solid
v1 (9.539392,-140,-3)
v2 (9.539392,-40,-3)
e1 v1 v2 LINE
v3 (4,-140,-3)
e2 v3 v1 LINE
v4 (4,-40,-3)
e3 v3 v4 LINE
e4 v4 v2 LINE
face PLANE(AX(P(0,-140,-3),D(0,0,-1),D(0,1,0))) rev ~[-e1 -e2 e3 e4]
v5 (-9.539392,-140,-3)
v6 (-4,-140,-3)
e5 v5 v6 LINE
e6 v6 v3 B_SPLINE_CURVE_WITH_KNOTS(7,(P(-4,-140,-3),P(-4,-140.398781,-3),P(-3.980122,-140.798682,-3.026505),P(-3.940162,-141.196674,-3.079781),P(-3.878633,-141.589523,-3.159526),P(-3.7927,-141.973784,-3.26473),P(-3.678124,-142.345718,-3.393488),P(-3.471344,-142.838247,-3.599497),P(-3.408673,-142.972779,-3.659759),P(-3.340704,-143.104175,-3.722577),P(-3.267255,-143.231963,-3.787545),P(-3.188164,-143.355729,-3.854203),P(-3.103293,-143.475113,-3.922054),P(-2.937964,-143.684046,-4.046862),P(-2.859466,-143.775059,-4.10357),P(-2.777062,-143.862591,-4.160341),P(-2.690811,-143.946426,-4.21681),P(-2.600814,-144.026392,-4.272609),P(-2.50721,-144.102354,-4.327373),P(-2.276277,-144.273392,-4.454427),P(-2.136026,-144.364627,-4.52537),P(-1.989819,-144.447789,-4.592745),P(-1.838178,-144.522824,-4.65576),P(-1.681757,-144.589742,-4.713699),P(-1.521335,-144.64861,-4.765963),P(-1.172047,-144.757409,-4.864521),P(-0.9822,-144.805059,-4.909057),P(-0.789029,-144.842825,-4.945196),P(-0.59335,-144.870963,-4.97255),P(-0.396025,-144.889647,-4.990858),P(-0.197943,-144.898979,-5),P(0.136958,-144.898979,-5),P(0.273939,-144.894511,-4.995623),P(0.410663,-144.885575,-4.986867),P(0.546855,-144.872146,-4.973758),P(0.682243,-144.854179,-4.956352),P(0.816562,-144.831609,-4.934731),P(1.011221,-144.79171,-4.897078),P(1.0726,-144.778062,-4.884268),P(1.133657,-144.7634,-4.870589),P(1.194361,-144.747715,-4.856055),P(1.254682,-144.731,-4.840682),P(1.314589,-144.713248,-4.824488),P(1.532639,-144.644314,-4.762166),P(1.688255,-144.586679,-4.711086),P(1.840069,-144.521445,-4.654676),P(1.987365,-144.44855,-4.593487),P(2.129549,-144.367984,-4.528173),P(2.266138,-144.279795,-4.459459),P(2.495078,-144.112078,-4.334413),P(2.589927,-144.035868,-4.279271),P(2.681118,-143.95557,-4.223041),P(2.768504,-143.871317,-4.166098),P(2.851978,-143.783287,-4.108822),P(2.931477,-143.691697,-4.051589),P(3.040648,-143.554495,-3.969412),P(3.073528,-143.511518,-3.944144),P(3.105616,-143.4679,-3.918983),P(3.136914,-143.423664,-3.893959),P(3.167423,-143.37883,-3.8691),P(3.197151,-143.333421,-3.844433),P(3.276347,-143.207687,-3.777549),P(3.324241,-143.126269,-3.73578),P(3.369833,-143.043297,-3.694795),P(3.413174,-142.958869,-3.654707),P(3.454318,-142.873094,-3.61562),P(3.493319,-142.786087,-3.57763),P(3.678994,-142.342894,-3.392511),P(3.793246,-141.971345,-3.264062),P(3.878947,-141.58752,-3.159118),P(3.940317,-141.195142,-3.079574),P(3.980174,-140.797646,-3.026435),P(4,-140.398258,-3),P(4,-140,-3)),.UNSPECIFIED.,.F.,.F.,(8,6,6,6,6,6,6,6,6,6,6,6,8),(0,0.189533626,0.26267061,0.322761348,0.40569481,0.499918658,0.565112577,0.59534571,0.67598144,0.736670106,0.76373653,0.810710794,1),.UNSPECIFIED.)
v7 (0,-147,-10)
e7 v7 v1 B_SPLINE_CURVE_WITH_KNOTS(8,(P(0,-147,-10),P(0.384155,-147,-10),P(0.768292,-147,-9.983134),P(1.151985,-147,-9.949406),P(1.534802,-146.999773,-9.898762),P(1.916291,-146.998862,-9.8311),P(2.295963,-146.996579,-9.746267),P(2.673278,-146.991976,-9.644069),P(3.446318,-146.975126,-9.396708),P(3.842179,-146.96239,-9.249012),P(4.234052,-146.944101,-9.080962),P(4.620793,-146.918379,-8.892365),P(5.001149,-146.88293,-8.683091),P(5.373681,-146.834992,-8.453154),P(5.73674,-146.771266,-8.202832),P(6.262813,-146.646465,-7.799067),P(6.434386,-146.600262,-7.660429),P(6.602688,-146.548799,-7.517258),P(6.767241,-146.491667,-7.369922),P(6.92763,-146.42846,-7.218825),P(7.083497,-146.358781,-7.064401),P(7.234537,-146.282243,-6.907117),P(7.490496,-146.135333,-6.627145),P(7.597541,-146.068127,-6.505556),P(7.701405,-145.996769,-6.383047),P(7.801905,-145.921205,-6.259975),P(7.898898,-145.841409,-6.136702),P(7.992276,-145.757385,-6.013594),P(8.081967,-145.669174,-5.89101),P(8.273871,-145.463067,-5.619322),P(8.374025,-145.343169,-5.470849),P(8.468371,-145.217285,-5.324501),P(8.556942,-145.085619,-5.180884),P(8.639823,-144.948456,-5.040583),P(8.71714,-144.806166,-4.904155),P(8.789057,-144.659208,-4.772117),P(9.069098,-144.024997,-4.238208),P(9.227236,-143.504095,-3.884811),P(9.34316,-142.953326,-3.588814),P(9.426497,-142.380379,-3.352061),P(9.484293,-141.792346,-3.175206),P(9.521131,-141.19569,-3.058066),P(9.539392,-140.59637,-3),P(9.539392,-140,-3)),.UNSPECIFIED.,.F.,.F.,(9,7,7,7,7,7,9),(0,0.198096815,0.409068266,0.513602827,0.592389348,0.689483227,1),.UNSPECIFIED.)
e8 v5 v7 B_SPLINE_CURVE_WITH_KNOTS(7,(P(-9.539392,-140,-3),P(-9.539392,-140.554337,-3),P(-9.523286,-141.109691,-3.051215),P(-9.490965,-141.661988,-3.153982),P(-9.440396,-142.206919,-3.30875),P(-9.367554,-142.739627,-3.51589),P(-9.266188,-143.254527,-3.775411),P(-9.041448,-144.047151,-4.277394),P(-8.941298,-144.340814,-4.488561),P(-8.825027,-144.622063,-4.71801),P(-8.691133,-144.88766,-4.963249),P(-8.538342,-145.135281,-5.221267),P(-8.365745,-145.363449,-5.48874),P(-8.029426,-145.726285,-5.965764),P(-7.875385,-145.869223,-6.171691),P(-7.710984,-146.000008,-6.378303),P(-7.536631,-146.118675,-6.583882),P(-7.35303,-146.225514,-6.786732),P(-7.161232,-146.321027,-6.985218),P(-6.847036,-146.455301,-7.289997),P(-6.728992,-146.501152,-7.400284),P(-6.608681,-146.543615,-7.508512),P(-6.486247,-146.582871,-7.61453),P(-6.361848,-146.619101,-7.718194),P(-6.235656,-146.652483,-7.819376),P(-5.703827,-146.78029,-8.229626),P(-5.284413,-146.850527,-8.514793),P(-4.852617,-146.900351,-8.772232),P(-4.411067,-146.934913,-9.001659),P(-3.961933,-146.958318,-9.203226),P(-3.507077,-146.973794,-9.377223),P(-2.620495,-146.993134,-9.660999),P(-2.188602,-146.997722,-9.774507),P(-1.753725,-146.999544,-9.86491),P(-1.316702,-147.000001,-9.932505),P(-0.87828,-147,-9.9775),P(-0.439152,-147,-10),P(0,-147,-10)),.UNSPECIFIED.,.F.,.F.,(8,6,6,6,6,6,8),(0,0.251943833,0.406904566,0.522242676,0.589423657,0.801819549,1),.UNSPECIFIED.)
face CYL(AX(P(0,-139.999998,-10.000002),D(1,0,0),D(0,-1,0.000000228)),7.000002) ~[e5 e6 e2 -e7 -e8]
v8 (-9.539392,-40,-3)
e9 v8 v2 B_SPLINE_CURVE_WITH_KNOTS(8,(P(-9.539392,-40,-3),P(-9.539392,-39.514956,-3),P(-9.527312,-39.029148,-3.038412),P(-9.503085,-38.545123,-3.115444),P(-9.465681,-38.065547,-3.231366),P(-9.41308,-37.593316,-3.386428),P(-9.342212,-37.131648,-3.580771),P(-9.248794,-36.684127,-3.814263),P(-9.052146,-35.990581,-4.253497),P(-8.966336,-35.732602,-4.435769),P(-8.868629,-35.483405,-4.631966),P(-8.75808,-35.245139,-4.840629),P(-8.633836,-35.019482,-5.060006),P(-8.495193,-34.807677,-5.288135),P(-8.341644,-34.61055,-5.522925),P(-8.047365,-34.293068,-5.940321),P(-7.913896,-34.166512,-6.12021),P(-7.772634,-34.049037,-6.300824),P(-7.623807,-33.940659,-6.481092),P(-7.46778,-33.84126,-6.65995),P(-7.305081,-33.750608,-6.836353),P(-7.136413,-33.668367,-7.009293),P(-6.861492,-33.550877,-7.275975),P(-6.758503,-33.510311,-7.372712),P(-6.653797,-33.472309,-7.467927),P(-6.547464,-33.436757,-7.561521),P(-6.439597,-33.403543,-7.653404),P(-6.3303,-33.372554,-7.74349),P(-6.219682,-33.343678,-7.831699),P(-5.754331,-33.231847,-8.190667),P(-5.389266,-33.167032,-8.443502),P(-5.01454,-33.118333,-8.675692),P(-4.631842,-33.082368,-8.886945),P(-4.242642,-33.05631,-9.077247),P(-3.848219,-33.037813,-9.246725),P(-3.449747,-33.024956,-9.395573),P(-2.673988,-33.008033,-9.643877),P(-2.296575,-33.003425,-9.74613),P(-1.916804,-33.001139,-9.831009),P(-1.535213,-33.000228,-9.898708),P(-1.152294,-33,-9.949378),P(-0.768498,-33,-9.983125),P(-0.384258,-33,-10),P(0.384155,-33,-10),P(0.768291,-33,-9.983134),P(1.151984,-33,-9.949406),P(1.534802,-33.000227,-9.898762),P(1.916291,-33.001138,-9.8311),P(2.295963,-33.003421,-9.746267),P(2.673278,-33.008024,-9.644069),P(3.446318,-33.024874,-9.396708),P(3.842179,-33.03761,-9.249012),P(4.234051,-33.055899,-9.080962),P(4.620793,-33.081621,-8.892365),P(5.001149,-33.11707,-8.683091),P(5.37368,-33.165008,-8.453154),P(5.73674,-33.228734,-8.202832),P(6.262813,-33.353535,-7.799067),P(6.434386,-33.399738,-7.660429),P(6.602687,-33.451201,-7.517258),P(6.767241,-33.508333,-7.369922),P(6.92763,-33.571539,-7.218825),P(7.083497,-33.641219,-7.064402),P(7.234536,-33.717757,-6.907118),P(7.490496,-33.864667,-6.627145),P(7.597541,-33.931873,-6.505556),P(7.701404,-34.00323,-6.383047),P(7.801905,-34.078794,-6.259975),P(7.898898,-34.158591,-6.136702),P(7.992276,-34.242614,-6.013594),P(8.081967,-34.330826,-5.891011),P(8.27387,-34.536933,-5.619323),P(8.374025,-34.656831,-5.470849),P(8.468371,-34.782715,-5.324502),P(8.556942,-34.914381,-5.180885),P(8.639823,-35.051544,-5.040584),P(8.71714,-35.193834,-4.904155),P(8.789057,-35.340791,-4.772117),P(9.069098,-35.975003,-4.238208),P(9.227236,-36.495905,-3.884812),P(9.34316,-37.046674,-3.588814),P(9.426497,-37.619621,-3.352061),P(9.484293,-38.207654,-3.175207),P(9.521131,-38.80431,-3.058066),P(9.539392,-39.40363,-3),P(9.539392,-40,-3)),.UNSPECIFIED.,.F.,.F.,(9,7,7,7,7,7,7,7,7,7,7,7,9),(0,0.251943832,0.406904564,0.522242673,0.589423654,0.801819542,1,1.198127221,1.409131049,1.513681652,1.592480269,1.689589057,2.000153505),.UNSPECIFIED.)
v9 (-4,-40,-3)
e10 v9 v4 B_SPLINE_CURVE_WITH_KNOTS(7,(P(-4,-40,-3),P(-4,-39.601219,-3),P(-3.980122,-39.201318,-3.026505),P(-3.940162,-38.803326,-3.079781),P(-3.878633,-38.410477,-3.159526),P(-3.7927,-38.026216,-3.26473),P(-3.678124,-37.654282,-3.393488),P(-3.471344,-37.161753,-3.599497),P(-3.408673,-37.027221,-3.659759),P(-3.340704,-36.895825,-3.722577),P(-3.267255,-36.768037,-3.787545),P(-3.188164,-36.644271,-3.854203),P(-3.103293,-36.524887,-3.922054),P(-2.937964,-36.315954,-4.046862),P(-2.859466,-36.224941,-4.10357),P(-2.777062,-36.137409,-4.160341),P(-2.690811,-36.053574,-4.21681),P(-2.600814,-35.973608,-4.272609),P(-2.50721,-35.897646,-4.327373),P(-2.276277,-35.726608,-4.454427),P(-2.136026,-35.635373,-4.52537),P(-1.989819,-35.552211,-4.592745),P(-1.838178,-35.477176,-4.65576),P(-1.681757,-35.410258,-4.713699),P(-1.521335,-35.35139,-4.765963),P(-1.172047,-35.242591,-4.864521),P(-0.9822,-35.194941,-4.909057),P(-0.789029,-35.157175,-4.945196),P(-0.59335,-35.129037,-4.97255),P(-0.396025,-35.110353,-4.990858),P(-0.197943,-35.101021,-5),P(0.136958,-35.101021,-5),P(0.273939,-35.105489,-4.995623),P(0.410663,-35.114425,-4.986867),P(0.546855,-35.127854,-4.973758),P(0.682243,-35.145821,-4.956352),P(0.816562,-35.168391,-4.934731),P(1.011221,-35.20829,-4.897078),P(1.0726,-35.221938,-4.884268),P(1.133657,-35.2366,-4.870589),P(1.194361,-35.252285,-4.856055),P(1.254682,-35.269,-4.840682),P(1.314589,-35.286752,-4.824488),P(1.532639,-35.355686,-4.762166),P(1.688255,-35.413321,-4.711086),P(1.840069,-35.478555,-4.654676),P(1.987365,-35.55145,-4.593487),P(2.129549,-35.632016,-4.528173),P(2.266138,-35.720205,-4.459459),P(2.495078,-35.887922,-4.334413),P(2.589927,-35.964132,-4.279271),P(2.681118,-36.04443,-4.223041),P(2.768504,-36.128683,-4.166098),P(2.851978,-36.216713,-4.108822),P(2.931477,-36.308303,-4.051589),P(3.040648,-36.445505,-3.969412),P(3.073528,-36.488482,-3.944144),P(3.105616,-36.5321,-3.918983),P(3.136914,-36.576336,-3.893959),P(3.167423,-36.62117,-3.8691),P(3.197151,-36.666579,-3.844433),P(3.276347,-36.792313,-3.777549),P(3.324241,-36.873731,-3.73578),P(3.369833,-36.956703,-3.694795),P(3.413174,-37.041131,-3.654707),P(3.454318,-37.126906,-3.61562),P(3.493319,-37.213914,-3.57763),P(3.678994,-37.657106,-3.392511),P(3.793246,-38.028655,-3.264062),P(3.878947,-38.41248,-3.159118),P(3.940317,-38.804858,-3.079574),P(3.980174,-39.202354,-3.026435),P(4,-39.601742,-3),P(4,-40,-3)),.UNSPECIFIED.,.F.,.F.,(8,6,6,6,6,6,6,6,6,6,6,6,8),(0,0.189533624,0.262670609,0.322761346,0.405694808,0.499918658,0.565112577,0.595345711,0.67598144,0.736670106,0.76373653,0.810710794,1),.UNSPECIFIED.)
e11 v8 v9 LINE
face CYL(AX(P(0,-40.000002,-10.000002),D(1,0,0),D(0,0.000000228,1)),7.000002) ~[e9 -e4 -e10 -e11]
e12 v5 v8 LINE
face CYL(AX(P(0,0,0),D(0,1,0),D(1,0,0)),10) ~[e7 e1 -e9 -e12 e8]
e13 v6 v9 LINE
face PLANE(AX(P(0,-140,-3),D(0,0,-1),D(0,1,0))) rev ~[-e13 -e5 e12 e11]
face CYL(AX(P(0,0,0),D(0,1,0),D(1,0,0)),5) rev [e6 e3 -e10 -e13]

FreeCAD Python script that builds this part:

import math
import FreeCAD as App
import Part
import Sketcher
Q = App.Units.Quantity

doc = App.newDocument("Part")
body = doc.addObject("PartDesign::Body", "Body")

sketch1 = doc.addObject("Sketcher::SketchObject", "Sketch")
body.addObject(sketch1)
sketch1.AttachmentSupport = (doc.XZ_Plane, [""])
sketch1.MapMode = "FlatFace"
sketch1.addGeometry(Part.Circle(App.Vector(0, 0, 0), App.Vector(0, 0, 1), 10), False)
sketch1.addGeometry(Part.Circle(App.Vector(0, 0, 0), App.Vector(0, 0, 1), 5), False)
sketch1.addConstraint(Sketcher.Constraint("Coincident", 0, 3, -1, 1))
sketch1.addConstraint(Sketcher.Constraint("Coincident", 1, 3, -1, 1))
sketch1.addConstraint(Sketcher.Constraint("Diameter", 0, Q("20 mm")))
sketch1.addConstraint(Sketcher.Constraint("Diameter", 1, Q("10 mm")))
pad1 = doc.addObject("PartDesign::Pad", "Pad")
body.addObject(pad1)
pad1.Profile = sketch1
pad1.Length = 180

sketch2 = doc.addObject("Sketcher::SketchObject", "Sketch001")
body.addObject(sketch2)
sketch2.AttachmentSupport = (doc.YZ_Plane, [""])
sketch2.MapMode = "FlatFace"
sketch2.addGeometry(Part.ArcOfCircle(Part.Circle(App.Vector(-139.999998, -10.000002, 0), App.Vector(0, 0, 1), 7.000002), math.radians(90.000013), math.radians(179.999987)), False)
sketch2.addGeometry(Part.LineSegment(App.Vector(-140, -3, 0), App.Vector(-40, -3, 0)), False)
sketch2.addGeometry(Part.ArcOfCircle(Part.Circle(App.Vector(-40.000002, -10.000002, 0), App.Vector(0, 0, 1), 7.000002), math.radians(0.000013), math.radians(89.999987)), False)
sketch2.addGeometry(Part.LineSegment(App.Vector(-33, -10, 0), App.Vector(-14.682153, -24.968417, 0)), False)
sketch2.addGeometry(Part.LineSegment(App.Vector(-14.682153, -24.968417, 0), App.Vector(36.49023, -33.983029, 0)), False)
sketch2.addGeometry(Part.LineSegment(App.Vector(36.49023, -33.983029, 0), App.Vector(19.090915, 33.983029, 0)), False)
sketch2.addGeometry(Part.LineSegment(App.Vector(19.090915, 33.983029, 0), App.Vector(-179.398015, 25.044244, 0)), False)
sketch2.addGeometry(Part.LineSegment(App.Vector(-179.398015, 25.044244, 0), App.Vector(-188.975835, -10, 0)), False)
sketch2.addGeometry(Part.LineSegment(App.Vector(-188.975835, -10, 0), App.Vector(-147, -10, 0)), False)
sketch2.addConstraint(Sketcher.Constraint("Coincident", 0, 1, 1, 1))
sketch2.addConstraint(Sketcher.Constraint("Coincident", 1, 2, 2, 2))
sketch2.addConstraint(Sketcher.Constraint("Coincident", 2, 1, 3, 1))
sketch2.addConstraint(Sketcher.Constraint("Coincident", 3, 2, 4, 1))
sketch2.addConstraint(Sketcher.Constraint("Coincident", 4, 2, 5, 1))
sketch2.addConstraint(Sketcher.Constraint("Coincident", 5, 2, 6, 1))
sketch2.addConstraint(Sketcher.Constraint("Coincident", 6, 2, 7, 1))
sketch2.addConstraint(Sketcher.Constraint("Coincident", 7, 2, 8, 1))
sketch2.addConstraint(Sketcher.Constraint("Coincident", 8, 2, 0, 2))
sketch2.addConstraint(Sketcher.Constraint("Horizontal", 1))
sketch2.addConstraint(Sketcher.Constraint("Horizontal", 8))
sketch2.addConstraint(Sketcher.Constraint("Radius", 0, Q("7.000002 mm")))
sketch2.addConstraint(Sketcher.Constraint("Radius", 2, Q("7.000002 mm")))
sketch2.addConstraint(Sketcher.Constraint("DistanceX", 1, 1, 1, 2, Q("100 mm")))
sketch2.addConstraint(Sketcher.Constraint("DistanceX", 0, 3, -1, 1, Q("139.999998 mm")))
sketch2.addConstraint(Sketcher.Constraint("DistanceY", 0, 3, -1, 1, Q("10.000002 mm")))
sketch2.addConstraint(Sketcher.Constraint("DistanceX", 2, 3, -1, 1, Q("40.000002 mm")))
sketch2.addConstraint(Sketcher.Constraint("DistanceX", 0, 1, -1, 1, Q("140 mm")))
sketch2.addConstraint(Sketcher.Constraint("DistanceY", 2, 1, -1, 1, Q("10 mm")))
sketch2.addConstraint(Sketcher.Constraint("DistanceY", 7, 2, -1, 1, Q("10 mm")))
sketch2.addConstraint(Sketcher.Constraint("Distance", 4, Q("51.960331 mm")))
sketch2.addConstraint(Sketcher.Constraint("Distance", 5, Q("70.157831 mm")))
sketch2.addConstraint(Sketcher.Constraint("DistanceX", 8, 1, 8, 2, Q("41.975835 mm")))
sketch2.addConstraint(Sketcher.Constraint("DistanceX", -1, 1, 4, 2, Q("36.49023 mm")))
sketch2.addConstraint(Sketcher.Constraint("DistanceY", 4, 2, -1, 1, Q("33.983029 mm")))
sketch2.addConstraint(Sketcher.Constraint("DistanceY", -1, 1, 5, 2, Q("33.983029 mm")))
sketch2.addConstraint(Sketcher.Constraint("DistanceX", 2, 3, 3, 2, Q("25.317849 mm")))
sketch2.addConstraint(Sketcher.Constraint("DistanceX", 7, 2, 6, 2, Q("9.57782 mm")))
sketch2.addConstraint(Sketcher.Constraint("Distance", 6, Q("198.690103 mm")))
pocket1 = doc.addObject("PartDesign::Pocket", "Pocket")
body.addObject(pocket1)
pocket1.Profile = sketch2
pocket1.Length = 40
pocket1.Midplane = True

doc.recompute()
